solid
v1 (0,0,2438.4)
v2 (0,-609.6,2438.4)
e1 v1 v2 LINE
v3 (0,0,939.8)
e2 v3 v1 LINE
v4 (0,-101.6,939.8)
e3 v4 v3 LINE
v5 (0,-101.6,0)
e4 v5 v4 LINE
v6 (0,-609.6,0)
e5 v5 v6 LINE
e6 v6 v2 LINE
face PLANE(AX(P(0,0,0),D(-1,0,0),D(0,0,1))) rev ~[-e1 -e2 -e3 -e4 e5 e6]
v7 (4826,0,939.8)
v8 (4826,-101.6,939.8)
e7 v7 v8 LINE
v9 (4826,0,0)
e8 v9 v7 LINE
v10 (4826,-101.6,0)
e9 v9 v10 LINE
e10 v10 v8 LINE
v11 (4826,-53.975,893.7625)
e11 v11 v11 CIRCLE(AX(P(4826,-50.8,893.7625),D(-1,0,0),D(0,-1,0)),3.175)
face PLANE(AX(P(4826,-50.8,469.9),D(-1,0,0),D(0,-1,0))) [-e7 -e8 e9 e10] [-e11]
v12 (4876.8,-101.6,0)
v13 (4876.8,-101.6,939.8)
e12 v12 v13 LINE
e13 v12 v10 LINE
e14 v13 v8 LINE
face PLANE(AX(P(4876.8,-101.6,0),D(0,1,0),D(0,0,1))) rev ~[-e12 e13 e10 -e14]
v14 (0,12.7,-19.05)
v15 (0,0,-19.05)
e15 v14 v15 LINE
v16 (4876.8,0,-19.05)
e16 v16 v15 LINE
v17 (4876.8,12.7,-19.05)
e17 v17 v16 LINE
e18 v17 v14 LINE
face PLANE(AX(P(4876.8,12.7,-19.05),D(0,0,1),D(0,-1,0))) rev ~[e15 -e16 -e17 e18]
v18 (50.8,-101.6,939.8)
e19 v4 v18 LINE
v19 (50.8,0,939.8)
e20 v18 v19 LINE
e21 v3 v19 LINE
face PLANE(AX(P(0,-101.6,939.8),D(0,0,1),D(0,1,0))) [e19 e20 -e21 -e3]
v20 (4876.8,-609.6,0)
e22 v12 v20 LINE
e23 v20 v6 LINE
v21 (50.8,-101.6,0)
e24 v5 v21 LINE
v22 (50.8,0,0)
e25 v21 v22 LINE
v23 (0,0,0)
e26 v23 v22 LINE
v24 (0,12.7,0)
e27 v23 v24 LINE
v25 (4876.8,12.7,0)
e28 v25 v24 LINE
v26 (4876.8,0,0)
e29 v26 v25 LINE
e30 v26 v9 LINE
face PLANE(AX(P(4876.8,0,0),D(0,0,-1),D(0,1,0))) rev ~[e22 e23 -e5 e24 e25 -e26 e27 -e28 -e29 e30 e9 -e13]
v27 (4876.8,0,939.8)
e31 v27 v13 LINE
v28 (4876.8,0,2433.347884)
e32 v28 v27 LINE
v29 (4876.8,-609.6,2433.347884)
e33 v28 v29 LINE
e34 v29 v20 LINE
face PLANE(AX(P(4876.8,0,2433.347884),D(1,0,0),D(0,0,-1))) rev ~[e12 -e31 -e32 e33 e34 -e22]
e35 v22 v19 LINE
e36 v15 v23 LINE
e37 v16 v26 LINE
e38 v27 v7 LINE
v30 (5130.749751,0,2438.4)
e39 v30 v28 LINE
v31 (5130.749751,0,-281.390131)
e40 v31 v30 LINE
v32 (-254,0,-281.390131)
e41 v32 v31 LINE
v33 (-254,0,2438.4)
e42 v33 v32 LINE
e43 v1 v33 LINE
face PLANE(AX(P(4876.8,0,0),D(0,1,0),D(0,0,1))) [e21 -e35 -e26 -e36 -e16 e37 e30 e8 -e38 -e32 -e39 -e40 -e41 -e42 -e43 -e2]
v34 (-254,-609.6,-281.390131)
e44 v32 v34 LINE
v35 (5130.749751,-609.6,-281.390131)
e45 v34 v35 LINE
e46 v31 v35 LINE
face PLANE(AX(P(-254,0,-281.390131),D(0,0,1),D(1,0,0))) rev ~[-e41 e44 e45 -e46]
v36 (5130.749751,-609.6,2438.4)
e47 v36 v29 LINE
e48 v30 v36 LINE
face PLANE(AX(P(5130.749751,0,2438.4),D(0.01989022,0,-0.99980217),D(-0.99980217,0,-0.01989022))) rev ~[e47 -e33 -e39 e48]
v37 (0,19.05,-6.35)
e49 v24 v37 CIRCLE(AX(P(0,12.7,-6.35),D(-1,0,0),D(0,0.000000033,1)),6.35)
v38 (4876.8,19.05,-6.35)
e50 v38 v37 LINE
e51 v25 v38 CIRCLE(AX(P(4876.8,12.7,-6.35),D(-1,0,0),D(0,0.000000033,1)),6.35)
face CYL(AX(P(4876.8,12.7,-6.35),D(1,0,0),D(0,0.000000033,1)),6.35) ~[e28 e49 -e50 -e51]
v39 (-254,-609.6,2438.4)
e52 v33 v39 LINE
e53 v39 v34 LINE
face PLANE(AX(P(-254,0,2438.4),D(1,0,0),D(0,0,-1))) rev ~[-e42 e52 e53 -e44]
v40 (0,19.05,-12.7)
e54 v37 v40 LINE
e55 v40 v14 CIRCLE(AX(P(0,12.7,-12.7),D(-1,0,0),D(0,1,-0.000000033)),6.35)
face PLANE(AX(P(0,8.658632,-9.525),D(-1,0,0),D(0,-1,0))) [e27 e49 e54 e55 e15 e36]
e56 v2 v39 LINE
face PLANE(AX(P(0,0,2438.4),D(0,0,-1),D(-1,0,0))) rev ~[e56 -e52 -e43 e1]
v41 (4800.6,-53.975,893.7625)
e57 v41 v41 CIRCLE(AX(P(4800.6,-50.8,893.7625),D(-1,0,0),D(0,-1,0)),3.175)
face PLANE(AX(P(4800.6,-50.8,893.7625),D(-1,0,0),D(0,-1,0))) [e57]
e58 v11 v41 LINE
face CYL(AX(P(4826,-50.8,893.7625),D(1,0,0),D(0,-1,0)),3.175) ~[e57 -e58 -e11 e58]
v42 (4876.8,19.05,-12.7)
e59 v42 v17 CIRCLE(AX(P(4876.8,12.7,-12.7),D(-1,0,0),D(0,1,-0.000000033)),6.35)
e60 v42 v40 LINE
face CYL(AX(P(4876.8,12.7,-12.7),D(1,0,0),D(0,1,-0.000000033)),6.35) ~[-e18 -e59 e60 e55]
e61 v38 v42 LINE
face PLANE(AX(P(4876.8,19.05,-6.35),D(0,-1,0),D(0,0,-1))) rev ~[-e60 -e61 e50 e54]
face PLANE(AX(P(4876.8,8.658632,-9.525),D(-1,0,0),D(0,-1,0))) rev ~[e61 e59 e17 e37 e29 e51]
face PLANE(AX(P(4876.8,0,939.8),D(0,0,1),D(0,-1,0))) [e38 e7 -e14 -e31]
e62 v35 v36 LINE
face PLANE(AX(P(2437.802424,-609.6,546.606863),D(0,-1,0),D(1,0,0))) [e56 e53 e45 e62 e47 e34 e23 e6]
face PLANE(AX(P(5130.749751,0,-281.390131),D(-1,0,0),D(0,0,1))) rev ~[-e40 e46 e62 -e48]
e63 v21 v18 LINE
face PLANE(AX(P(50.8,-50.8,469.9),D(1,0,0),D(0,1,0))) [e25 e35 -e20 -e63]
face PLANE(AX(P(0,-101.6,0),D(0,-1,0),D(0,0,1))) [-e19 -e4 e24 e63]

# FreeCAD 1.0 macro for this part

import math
import FreeCAD as App
import Part
import Sketcher
Q = App.Units.Quantity

doc = App.newDocument("Part")
body = doc.addObject("PartDesign::Body", "Body")

# Sketch on XZ plane
sketch1 = body.newObject("Sketcher::SketchObject", "Sketch")
sketch1.AttachmentSupport = (doc.getObject("XZ_Plane"), [""])
sketch1.MapMode = "FlatFace"
sketch1.addGeometry(Part.LineSegment(App.Vector(4877, 0, 0), App.Vector(0, 0, 0)), False)
sketch1.addGeometry(Part.LineSegment(App.Vector(0, 0, 0), App.Vector(0, 2438, 0)), False)
sketch1.addGeometry(Part.LineSegment(App.Vector(0, 2438, 0), App.Vector(-254, 2438, 0)), False)
sketch1.addGeometry(Part.LineSegment(App.Vector(-254, 2438, 0), App.Vector(-254, -281, 0)), False)
sketch1.addGeometry(Part.LineSegment(App.Vector(-254, -281, 0), App.Vector(5131, -281, 0)), False)
sketch1.addGeometry(Part.LineSegment(App.Vector(5131, -281, 0), App.Vector(5131, 2438, 0)), False)
sketch1.addGeometry(Part.LineSegment(App.Vector(5131, 2438, 0), App.Vector(4877, 2433, 0)), False)
sketch1.addGeometry(Part.LineSegment(App.Vector(4877, 2433, 0), App.Vector(4877, 0, 0)), False)
sketch1.addConstraint(Sketcher.Constraint("Coincident", 0, 2, 1, 1))
sketch1.addConstraint(Sketcher.Constraint("Coincident", 1, 2, 2, 1))
sketch1.addConstraint(Sketcher.Constraint("Coincident", 2, 2, 3, 1))
sketch1.addConstraint(Sketcher.Constraint("Coincident", 3, 2, 4, 1))
sketch1.addConstraint(Sketcher.Constraint("Coincident", 4, 2, 5, 1))
sketch1.addConstraint(Sketcher.Constraint("Coincident", 5, 2, 6, 1))
sketch1.addConstraint(Sketcher.Constraint("Coincident", 6, 2, 7, 1))
sketch1.addConstraint(Sketcher.Constraint("Coincident", 7, 2, 0, 1))
sketch1.addConstraint(Sketcher.Constraint("Horizontal", 0))
sketch1.addConstraint(Sketcher.Constraint("Vertical", 1))
sketch1.addConstraint(Sketcher.Constraint("Horizontal", 2))
sketch1.addConstraint(Sketcher.Constraint("Vertical", 3))
sketch1.addConstraint(Sketcher.Constraint("Horizontal", 4))
sketch1.addConstraint(Sketcher.Constraint("Vertical", 5))
sketch1.addConstraint(Sketcher.Constraint("Vertical", 7))
sketch1.addConstraint(Sketcher.Constraint("Coincident", 0, 2, -1, 1))
sketch1.addConstraint(Sketcher.Constraint("Horizontal", 2, 2, 5, 2))
sketch1.addConstraint(Sketcher.Constraint("DistanceX", 0, 2, 0, 1, Q("192 in")))
sketch1.addConstraint(Sketcher.Constraint("DistanceX", 2, 2, 2, 1, Q("10 in")))
sketch1.addConstraint(Sketcher.Constraint("DistanceY", 1, 1, 1, 2, Q("96 in")))
sketch1.addConstraint(Sketcher.Constraint("Distance", 6, Q("10 in")))
sketch1.addConstraint(Sketcher.Constraint("DistanceX", 4, 1, 4, 2, 5384.749751))
sketch1.addConstraint(Sketcher.Constraint("DistanceY", 3, 2, 3, 1, 2719.790131))
pad1 = body.newObject("PartDesign::Pad", "Pad")
pad1.Profile = sketch1
pad1.Length = Q("24 in")

# Sketch on YZ plane
sketch2 = body.newObject("Sketcher::SketchObject", "Sketch001")
sketch2.AttachmentSupport = (doc.getObject("YZ_Plane"), [""])
sketch2.MapMode = "FlatFace"
sketch2.AttachmentOffset = App.Placement(App.Vector(0, 0, 192 * 25.4), App.Rotation())
sketch2.addGeometry(Part.LineSegment(App.Vector(0, -19, 0), App.Vector(0, 0, 0)), False)
sketch2.addGeometry(Part.LineSegment(App.Vector(0, 0, 0), App.Vector(13, 0, 0)), False)
sketch2.addGeometry(Part.ArcOfCircle(Part.Circle(App.Vector(13, -6, 0), App.Vector(0, 0, 1), 6), math.radians(0), math.radians(90)), False)
sketch2.addGeometry(Part.LineSegment(App.Vector(19, -6, 0), App.Vector(19, -13, 0)), False)
sketch2.addGeometry(Part.ArcOfCircle(Part.Circle(App.Vector(13, -13, 0), App.Vector(0, 0, 1), 6), math.radians(-90), math.radians(0)), False)
sketch2.addGeometry(Part.LineSegment(App.Vector(13, -19, 0), App.Vector(0, -19, 0)), False)
sketch2.addConstraint(Sketcher.Constraint("Coincident", 0, 2, 1, 1))
sketch2.addConstraint(Sketcher.Constraint("Tangent", 1, 2, 2, 2))
sketch2.addConstraint(Sketcher.Constraint("Tangent", 2, 1, 3, 1))
sketch2.addConstraint(Sketcher.Constraint("Tangent", 3, 2, 4, 2))
sketch2.addConstraint(Sketcher.Constraint("Tangent", 4, 1, 5, 1))
sketch2.addConstraint(Sketcher.Constraint("Coincident", 5, 2, 0, 1))
sketch2.addConstraint(Sketcher.Constraint("Vertical", 0))
sketch2.addConstraint(Sketcher.Constraint("Horizontal", 1))
sketch2.addConstraint(Sketcher.Constraint("Vertical", 3))
sketch2.addConstraint(Sketcher.Constraint("Horizontal", 5))
sketch2.addConstraint(Sketcher.Constraint("Coincident", 0, 2, -1, 1))
sketch2.addConstraint(Sketcher.Constraint("Equal", 2, 4))
sketch2.addConstraint(Sketcher.Constraint("Radius", 2, Q("0.25 in")))
sketch2.addConstraint(Sketcher.Constraint("DistanceX", 1, 1, 1, 2, Q("0.5 in")))
sketch2.addConstraint(Sketcher.Constraint("DistanceY", 0, 1, 0, 2, Q("0.75 in")))
pad2 = body.newObject("PartDesign::Pad", "Pad001")
pad2.Profile = sketch2
pad2.Length = Q("192 in")
pad2.Reversed = True

# Sketch on YZ plane
sketch3 = body.newObject("Sketcher::SketchObject", "Sketch002")
sketch3.AttachmentSupport = (doc.getObject("YZ_Plane"), [""])
sketch3.MapMode = "FlatFace"
sketch3.addGeometry(Part.LineSegment(App.Vector(-102, 940, 0), App.Vector(-102, 0, 0)), False)
sketch3.addGeometry(Part.LineSegment(App.Vector(-102, 0, 0), App.Vector(0, 0, 0)), False)
sketch3.addGeometry(Part.LineSegment(App.Vector(0, 0, 0), App.Vector(0, 940, 0)), False)
sketch3.addGeometry(Part.LineSegment(App.Vector(0, 940, 0), App.Vector(-102, 940, 0)), False)
sketch3.addConstraint(Sketcher.Constraint("Coincident", 0, 2, 1, 1))
sketch3.addConstraint(Sketcher.Constraint("Coincident", 1, 2, 2, 1))
sketch3.addConstraint(Sketcher.Constraint("Coincident", 2, 2, 3, 1))
sketch3.addConstraint(Sketcher.Constraint("Coincident", 3, 2, 0, 1))
sketch3.addConstraint(Sketcher.Constraint("Vertical", 0))
sketch3.addConstraint(Sketcher.Constraint("Horizontal", 1))
sketch3.addConstraint(Sketcher.Constraint("Vertical", 2))
sketch3.addConstraint(Sketcher.Constraint("Horizontal", 3))
sketch3.addConstraint(Sketcher.Constraint("Coincident", 1, 2, -1, 1))
sketch3.addConstraint(Sketcher.Constraint("DistanceX", 1, 1, 1, 2, Q("4 in")))
sketch3.addConstraint(Sketcher.Constraint("DistanceY", 0, 2, 0, 1, Q("37 in")))
pad3 = body.newObject("PartDesign::Pad", "Pad002")
pad3.Profile = sketch3
pad3.Length = Q("2 in")

# Sketch on YZ plane
sketch4 = body.newObject("Sketcher::SketchObject", "Sketch003")
sketch4.AttachmentSupport = (doc.getObject("YZ_Plane"), [""])
sketch4.MapMode = "FlatFace"
sketch4.AttachmentOffset = App.Placement(App.Vector(0, 0, 192 * 25.4), App.Rotation())
sketch4.addGeometry(Part.LineSegment(App.Vector(0, 940, 0), App.Vector(0, 0, 0)), False)
sketch4.addGeometry(Part.LineSegment(App.Vector(0, 0, 0), App.Vector(-102, 0, 0)), False)
sketch4.addGeometry(Part.LineSegment(App.Vector(-102, 0, 0), App.Vector(-102, 940, 0)), False)
sketch4.addGeometry(Part.LineSegment(App.Vector(-102, 940, 0), App.Vector(0, 940, 0)), False)
sketch4.addConstraint(Sketcher.Constraint("Coincident", 0, 2, 1, 1))
sketch4.addConstraint(Sketcher.Constraint("Coincident", 1, 2, 2, 1))
sketch4.addConstraint(Sketcher.Constraint("Coincident", 2, 2, 3, 1))
sketch4.addConstraint(Sketcher.Constraint("Coincident", 3, 2, 0, 1))
sketch4.addConstraint(Sketcher.Constraint("Vertical", 0))
sketch4.addConstraint(Sketcher.Constraint("Horizontal", 1))
sketch4.addConstraint(Sketcher.Constraint("Vertical", 2))
sketch4.addConstraint(Sketcher.Constraint("Horizontal", 3))
sketch4.addConstraint(Sketcher.Constraint("Coincident", 0, 2, -1, 1))
sketch4.addConstraint(Sketcher.Constraint("DistanceX", 1, 2, 1, 1, Q("4 in")))
sketch4.addConstraint(Sketcher.Constraint("DistanceY", 0, 2, 0, 1, Q("37 in")))
pad4 = body.newObject("PartDesign::Pad", "Pad003")
pad4.Profile = sketch4
pad4.Length = Q("2 in")
pad4.Reversed = True

# Sketch on YZ plane
sketch5 = body.newObject("Sketcher::SketchObject", "Sketch004")
sketch5.AttachmentSupport = (doc.getObject("YZ_Plane"), [""])
sketch5.MapMode = "FlatFace"
sketch5.AttachmentOffset = App.Placement(App.Vector(0, 0, 190 * 25.4), App.Rotation())
sketch5.addGeometry(Part.Circle(App.Vector(-50.8, 893.8, 0), App.Vector(0, 0, 1), 3.2), False)
sketch5.addConstraint(Sketcher.Constraint("Diameter", 0, Q("0.25 in")))
sketch5.addConstraint(Sketcher.Constraint("DistanceX", 0, 3, -1, 1, Q("2 in")))
sketch5.addConstraint(Sketcher.Constraint("DistanceY", -1, 1, 0, 3, Q("35.1875 in")))
pad5 = body.newObject("PartDesign::Pad", "Pad004")
pad5.Profile = sketch5
pad5.Length = Q("1 in")
pad5.Reversed = True

doc.recompute()
